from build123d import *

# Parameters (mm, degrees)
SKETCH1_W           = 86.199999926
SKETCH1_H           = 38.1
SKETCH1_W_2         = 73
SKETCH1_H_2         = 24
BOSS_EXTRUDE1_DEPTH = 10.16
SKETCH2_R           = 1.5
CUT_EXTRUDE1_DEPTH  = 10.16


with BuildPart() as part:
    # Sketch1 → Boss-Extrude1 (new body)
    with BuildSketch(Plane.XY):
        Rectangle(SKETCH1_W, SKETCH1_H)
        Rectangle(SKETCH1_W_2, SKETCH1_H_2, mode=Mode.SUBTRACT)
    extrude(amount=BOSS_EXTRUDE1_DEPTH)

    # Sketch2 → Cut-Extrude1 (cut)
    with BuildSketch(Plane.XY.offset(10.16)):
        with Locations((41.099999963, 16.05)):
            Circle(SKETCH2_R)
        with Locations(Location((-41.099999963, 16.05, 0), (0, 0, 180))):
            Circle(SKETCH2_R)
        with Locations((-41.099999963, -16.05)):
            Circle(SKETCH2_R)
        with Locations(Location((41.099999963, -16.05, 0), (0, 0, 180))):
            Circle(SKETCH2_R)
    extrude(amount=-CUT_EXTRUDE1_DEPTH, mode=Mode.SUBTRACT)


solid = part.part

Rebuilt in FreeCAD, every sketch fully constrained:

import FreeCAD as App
import Part
import Sketcher

V = App.Vector
Q = App.Units.Quantity

doc = App.newDocument("Part")
body = doc.addObject("PartDesign::Body", "Body")

# Sketch on XY plane
sketch1 = doc.addObject("Sketcher::SketchObject", "Sketch")
body.addObject(sketch1)
sketch1.AttachmentSupport = (doc.XY_Plane, [""])
sketch1.MapMode = "FlatFace"
sketch1.addGeometry([
    Part.LineSegment(V(-43, 19, 0), V(-43, -19, 0)),  # 0
    Part.LineSegment(V(-43, -19, 0), V(43, -19, 0)),  # 1
    Part.LineSegment(V(43, -19, 0), V(43, 19, 0)),  # 2
    Part.LineSegment(V(43, 19, 0), V(-43, 19, 0)),  # 3
    Part.LineSegment(V(36, -12, 0), V(-36, -12, 0)),  # 4
    Part.LineSegment(V(-36, -12, 0), V(-36, 12, 0)),  # 5
    Part.LineSegment(V(-36, 12, 0), V(36, 12, 0)),  # 6
    Part.LineSegment(V(36, 12, 0), V(36, -12, 0)),  # 7
], False)
sketch1.addConstraint([
    Sketcher.Constraint("Coincident", 0, 2, 1, 1),
    Sketcher.Constraint("Coincident", 1, 2, 2, 1),
    Sketcher.Constraint("Coincident", 2, 2, 3, 1),
    Sketcher.Constraint("Coincident", 3, 2, 0, 1),
    Sketcher.Constraint("Coincident", 4, 2, 5, 1),
    Sketcher.Constraint("Coincident", 5, 2, 6, 1),
    Sketcher.Constraint("Coincident", 6, 2, 7, 1),
    Sketcher.Constraint("Coincident", 7, 2, 4, 1),
    Sketcher.Constraint("Vertical", 0),
    Sketcher.Constraint("Horizontal", 1),
    Sketcher.Constraint("Vertical", 2),
    Sketcher.Constraint("Horizontal", 3),
    Sketcher.Constraint("Horizontal", 4),
    Sketcher.Constraint("Vertical", 5),
    Sketcher.Constraint("Horizontal", 6),
    Sketcher.Constraint("Vertical", 7),
    Sketcher.Constraint("Symmetric", 0, 2, 2, 2, -1, 1),
    Sketcher.Constraint("Symmetric", 4, 2, 6, 2, -1, 1),
    Sketcher.Constraint("DistanceX", 4, 2, 4, 1, Q("73 mm")),
    Sketcher.Constraint("DistanceY", 5, 1, 5, 2, Q("24 mm")),
    Sketcher.Constraint("DistanceX", 1, 1, 1, 2, Q("86.2 mm")),
    Sketcher.Constraint("DistanceY", 0, 2, 0, 1, Q("38.1 mm")),
])
pad1 = doc.addObject("PartDesign::Pad", "Pad")
body.addObject(pad1)
pad1.Profile = sketch1
pad1.Length = 10.16

# Sketch on XY plane
sketch2 = doc.addObject("Sketcher::SketchObject", "Sketch001")
body.addObject(sketch2)
sketch2.AttachmentSupport = (doc.XY_Plane, [""])
sketch2.MapMode = "FlatFace"
sketch2.AttachmentOffset = App.Placement(V(0, 0, 10.16), App.Rotation())
sketch2.addGeometry([
    Part.Circle(V(41.1, 16.1, 0), V(0, 0, 1), 1.5),
    Part.Circle(V(-41.1, 16.1, 0), V(0, 0, 1), 1.5),
    Part.Circle(V(-41.1, -16.1, 0), V(0, 0, 1), 1.5),
    Part.Circle(V(41.1, -16.1, 0), V(0, 0, 1), 1.5),
], False)
sketch2.addConstraint([
    Sketcher.Constraint("Equal", 0, 1),
    Sketcher.Constraint("Equal", 1, 2),
    Sketcher.Constraint("Equal", 2, 3),
    Sketcher.Constraint("Symmetric", 0, 3, 2, 3, -1, 1),
    Sketcher.Constraint("Symmetric", 1, 3, 3, 3, -1, 1),
    Sketcher.Constraint("Symmetric", 0, 3, 1, 3, -2),
    Sketcher.Constraint("Diameter", 0, Q("3 mm")),
    Sketcher.Constraint("DistanceX", -1, 1, 0, 3, Q("41.1 mm")),
    Sketcher.Constraint("DistanceY", 2, 3, 1, 3, Q("32.1 mm")),
])
pocket1 = doc.addObject("PartDesign::Pocket", "Pocket")
body.addObject(pocket1)
pocket1.Profile = sketch2
pocket1.Length = 10.16

doc.recompute()
